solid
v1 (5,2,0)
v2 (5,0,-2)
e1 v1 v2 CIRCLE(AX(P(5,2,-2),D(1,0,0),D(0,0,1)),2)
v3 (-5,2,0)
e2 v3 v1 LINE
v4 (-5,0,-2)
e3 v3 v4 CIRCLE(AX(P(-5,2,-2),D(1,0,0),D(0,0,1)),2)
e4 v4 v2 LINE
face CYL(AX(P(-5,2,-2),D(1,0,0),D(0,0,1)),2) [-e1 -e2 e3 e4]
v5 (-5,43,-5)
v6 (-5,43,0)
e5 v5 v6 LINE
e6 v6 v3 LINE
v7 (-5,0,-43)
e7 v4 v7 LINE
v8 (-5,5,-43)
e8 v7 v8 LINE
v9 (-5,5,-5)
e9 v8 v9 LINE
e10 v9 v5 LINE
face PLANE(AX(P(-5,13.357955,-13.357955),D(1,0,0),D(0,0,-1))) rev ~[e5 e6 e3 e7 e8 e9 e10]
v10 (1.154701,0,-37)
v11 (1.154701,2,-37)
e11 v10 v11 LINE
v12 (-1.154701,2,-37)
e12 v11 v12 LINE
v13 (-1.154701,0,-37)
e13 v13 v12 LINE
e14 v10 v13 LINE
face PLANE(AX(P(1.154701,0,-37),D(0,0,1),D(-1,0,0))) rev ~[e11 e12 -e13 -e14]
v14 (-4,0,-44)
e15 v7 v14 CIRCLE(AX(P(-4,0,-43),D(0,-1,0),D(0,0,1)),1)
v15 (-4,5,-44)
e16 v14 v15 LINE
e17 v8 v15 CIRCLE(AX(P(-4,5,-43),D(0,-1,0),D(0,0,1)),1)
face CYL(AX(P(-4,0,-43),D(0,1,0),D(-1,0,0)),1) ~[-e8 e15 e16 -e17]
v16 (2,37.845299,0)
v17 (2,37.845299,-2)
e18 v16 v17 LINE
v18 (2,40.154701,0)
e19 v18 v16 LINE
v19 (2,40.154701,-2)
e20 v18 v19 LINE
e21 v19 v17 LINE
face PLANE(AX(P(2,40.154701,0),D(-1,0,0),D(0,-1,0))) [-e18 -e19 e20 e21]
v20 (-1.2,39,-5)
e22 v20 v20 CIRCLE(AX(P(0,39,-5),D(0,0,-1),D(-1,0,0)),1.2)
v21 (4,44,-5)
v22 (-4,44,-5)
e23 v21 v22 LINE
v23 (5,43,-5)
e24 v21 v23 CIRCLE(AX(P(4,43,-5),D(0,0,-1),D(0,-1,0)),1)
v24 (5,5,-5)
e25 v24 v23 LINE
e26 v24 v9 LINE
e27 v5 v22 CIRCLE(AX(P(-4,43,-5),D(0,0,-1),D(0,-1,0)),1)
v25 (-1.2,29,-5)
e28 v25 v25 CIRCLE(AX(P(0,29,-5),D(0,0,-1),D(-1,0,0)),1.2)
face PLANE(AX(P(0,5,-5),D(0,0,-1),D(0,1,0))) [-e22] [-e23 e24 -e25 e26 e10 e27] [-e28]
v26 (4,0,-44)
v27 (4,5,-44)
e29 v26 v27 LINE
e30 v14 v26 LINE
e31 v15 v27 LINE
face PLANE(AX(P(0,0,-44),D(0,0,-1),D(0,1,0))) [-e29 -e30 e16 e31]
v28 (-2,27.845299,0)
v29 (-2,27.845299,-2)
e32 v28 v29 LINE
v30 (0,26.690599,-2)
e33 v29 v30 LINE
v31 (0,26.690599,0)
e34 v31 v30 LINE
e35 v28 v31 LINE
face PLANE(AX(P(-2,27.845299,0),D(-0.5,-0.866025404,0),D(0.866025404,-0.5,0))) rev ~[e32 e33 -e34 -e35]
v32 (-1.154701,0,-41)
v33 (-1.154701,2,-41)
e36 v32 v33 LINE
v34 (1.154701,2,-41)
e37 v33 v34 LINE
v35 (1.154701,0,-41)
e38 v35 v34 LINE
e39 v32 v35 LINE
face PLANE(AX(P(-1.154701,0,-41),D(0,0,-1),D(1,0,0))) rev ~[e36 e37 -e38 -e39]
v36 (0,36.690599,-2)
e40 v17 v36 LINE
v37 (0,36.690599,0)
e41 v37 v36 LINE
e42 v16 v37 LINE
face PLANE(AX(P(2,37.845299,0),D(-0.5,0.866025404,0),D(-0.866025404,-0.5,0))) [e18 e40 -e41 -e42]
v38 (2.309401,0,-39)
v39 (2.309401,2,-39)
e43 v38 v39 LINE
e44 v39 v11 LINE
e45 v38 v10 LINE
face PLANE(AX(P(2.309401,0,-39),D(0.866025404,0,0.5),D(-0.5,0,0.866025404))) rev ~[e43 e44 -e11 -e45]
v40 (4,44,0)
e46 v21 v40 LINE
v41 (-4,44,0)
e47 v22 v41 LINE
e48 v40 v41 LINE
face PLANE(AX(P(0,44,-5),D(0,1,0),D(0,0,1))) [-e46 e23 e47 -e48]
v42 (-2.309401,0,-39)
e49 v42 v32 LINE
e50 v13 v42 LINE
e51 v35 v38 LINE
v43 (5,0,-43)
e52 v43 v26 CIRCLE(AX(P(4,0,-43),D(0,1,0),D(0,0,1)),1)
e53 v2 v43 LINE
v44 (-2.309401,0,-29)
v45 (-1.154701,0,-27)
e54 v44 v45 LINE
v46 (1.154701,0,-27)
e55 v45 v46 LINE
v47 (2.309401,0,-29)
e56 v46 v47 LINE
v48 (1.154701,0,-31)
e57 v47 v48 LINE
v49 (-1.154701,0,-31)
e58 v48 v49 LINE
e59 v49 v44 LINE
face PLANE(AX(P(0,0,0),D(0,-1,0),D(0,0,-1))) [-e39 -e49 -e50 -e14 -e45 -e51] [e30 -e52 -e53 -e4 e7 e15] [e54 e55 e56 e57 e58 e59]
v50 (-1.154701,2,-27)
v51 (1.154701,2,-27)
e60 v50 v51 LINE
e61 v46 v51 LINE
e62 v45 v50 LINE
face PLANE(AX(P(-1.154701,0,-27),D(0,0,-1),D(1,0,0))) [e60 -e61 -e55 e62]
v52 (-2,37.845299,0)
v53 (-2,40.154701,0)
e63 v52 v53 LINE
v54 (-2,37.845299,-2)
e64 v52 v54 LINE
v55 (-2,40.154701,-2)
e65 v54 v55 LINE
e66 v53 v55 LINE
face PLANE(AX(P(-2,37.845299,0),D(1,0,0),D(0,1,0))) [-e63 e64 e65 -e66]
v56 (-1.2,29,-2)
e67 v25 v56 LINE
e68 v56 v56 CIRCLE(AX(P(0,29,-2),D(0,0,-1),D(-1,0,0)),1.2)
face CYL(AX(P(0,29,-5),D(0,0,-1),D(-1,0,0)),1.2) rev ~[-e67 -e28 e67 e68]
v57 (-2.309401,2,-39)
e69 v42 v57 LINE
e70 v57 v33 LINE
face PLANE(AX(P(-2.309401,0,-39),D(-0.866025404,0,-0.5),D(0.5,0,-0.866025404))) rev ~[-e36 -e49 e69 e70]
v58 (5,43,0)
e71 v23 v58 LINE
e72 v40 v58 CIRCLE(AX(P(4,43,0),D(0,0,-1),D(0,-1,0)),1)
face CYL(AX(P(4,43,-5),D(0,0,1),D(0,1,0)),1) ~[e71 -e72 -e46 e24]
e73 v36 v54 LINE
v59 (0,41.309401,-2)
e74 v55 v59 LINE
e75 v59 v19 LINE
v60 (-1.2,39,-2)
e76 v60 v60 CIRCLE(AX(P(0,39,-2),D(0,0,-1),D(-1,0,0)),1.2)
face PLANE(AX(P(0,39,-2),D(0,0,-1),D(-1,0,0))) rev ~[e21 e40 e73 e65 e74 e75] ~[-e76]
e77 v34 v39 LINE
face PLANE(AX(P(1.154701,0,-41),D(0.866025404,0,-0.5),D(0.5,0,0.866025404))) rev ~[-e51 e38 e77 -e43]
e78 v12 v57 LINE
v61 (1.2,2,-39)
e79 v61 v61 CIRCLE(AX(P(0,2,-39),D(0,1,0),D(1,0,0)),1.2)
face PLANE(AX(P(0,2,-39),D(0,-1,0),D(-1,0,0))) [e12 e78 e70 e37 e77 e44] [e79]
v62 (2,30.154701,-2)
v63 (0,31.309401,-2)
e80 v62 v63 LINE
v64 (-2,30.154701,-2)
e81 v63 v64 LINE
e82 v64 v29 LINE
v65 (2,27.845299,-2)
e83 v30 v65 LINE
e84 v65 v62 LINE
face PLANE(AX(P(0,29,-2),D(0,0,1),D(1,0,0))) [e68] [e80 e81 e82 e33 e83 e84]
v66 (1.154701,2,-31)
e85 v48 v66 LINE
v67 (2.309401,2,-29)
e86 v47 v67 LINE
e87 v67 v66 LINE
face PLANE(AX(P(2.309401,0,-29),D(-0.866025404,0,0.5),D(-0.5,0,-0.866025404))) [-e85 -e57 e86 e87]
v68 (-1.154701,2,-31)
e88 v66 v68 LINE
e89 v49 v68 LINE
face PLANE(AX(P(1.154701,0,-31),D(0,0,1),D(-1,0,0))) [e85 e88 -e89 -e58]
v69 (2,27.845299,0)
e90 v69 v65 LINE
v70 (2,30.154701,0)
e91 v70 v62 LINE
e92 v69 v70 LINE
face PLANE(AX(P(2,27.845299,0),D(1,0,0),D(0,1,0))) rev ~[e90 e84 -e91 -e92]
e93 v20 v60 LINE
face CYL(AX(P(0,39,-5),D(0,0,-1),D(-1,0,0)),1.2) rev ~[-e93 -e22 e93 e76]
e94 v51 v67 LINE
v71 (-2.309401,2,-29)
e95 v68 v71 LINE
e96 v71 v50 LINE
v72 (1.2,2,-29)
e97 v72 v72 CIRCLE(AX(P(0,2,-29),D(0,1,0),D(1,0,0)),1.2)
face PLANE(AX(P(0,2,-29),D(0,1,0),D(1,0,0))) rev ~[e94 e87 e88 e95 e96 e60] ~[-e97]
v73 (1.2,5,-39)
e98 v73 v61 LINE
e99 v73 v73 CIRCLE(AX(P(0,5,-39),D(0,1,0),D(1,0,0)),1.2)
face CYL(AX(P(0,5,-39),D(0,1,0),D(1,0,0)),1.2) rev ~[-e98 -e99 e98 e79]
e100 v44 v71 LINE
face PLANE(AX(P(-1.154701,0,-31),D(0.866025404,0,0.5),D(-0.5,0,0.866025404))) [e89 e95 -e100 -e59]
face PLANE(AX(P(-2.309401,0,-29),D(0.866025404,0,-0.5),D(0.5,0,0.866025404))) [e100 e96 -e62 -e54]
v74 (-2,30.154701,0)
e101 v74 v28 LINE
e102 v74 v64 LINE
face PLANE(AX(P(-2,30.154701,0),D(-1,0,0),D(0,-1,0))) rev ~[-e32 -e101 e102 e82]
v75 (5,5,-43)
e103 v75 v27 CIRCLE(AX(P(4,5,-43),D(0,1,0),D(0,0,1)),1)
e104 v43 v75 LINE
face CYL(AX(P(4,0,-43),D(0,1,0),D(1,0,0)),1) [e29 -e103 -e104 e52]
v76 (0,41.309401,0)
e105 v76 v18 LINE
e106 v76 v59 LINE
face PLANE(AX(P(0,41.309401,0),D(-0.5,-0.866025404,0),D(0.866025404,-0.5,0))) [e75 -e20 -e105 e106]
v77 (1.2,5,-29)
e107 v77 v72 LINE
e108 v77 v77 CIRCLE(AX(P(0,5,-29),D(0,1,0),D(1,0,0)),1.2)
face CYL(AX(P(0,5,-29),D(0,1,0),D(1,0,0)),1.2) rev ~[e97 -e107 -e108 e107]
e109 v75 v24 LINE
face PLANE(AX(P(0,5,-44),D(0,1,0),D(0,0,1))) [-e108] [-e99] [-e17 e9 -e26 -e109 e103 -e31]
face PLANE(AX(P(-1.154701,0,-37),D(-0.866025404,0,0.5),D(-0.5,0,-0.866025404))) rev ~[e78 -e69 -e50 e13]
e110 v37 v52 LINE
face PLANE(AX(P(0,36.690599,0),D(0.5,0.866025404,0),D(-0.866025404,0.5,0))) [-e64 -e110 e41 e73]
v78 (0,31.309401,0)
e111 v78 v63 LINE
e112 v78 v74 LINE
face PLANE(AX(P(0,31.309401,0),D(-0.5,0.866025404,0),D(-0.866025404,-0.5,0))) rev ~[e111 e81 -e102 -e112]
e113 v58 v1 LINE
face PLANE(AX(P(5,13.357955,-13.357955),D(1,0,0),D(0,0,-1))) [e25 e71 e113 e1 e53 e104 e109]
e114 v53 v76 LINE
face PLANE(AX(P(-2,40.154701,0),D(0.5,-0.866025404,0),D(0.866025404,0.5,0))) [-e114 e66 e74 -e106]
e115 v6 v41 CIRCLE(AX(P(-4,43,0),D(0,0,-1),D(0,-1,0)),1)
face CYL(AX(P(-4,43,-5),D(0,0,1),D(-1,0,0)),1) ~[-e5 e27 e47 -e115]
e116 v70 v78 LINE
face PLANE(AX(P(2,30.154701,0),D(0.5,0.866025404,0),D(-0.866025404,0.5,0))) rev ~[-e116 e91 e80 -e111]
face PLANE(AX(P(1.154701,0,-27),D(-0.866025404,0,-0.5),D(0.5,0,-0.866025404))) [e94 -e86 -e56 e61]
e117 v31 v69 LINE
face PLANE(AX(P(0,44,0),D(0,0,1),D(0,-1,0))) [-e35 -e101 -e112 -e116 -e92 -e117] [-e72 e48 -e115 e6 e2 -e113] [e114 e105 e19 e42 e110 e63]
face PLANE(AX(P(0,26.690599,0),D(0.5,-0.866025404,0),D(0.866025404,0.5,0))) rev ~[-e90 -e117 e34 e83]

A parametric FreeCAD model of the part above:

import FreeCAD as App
import Part
import Sketcher
Q = App.Units.Quantity


def edges_at(feature, points):
    """Names of the edges that pass closest to the given points."""
    edges = feature.Shape.Edges
    near = lambda p: min(range(len(edges)), key=lambda i: edges[i].distToShape(Part.Vertex(*p))[0])
    return sorted({f"Edge{near(p) + 1}" for p in points})


def add_polygon(sketch, points):
    """Adds a closed chain of lines whose ends are joined by coincident constraints."""
    first, n = sketch.GeometryCount, len(points)
    for a, b in zip(points, points[1:] + points[:1]):
        sketch.addGeometry(Part.LineSegment(App.Vector(*a, 0), App.Vector(*b, 0)), False)
    for i in range(n):
        sketch.addConstraint(Sketcher.Constraint("Coincident", first + i, 2, first + (i + 1) % n, 1))

doc = App.newDocument("Part")
body = doc.addObject("PartDesign::Body", "Body")

sketch1 = body.newObject("Sketcher::SketchObject", "Sketch")
sketch1.AttachmentSupport = (doc.getObject("YZ_Plane"), [""])
sketch1.MapMode = "FlatFace"
add_polygon(sketch1, [(44, 0), (0, 0), (0, -44), (5, -44), (5, -5), (44, -5)])
sketch1.addConstraint([
    Sketcher.Constraint("Horizontal", 0),
    Sketcher.Constraint("Vertical", 1),
    Sketcher.Constraint("Horizontal", 2),
    Sketcher.Constraint("Vertical", 3),
    Sketcher.Constraint("Horizontal", 4),
    Sketcher.Constraint("Vertical", 5),
    Sketcher.Constraint("Coincident", 0, 2, -1, 1),
    Sketcher.Constraint("Equal", 0, 1),
    Sketcher.Constraint("Equal", 4, 3),
    Sketcher.Constraint("DistanceX", 0, 2, 0, 1, 44.0),
    Sketcher.Constraint("DistanceX", 2, 1, 2, 2, 5.0),
])
pad1 = body.newObject("PartDesign::Pad", "Pad")
pad1.Profile = sketch1
pad1.Type = "TwoLengths"
pad1.Length = 5
pad1.Length2 = 5

sketch2 = body.newObject("Sketcher::SketchObject", "Sketch001")
sketch2.AttachmentSupport = (doc.getObject("XZ_Plane"), [""])
sketch2.MapMode = "FlatFace"
sketch2.AttachmentOffset = App.Placement(App.Vector(0, 0, -5), App.Rotation())
sketch2.addGeometry([
    Part.Circle(App.Vector(0, -39, 0), App.Vector(0, 0, 1), 1.2),
    Part.Circle(App.Vector(0, -29, 0), App.Vector(0, 0, 1), 1.2),
], False)
sketch2.addConstraint([
    Sketcher.Constraint("Equal", 0, 1),
    Sketcher.Constraint("PointOnObject", 0, 3, -2),
    Sketcher.Constraint("PointOnObject", 1, 3, -2),
    Sketcher.Constraint("Diameter", 0, 2.4),
    Sketcher.Constraint("DistanceY", 0, 3, -1, 1, 39.0),
    Sketcher.Constraint("DistanceY", 1, 3, -1, 1, 29.0),
])
pocket1 = body.newObject("PartDesign::Pocket", "Pocket")
pocket1.Profile = sketch2
pocket1.Type = "ThroughAll"
pocket1.Reversed = True

sketch3 = body.newObject("Sketcher::SketchObject", "Sketch002")
sketch3.AttachmentSupport = (doc.getObject("XY_Plane"), [""])
sketch3.MapMode = "FlatFace"
sketch3.AttachmentOffset = App.Placement(App.Vector(0, 0, -5), App.Rotation())
sketch3.addGeometry([
    Part.Circle(App.Vector(0, 39, 0), App.Vector(0, 0, 1), 1.2),
    Part.Circle(App.Vector(0, 29, 0), App.Vector(0, 0, 1), 1.2),
], False)
sketch3.addConstraint([
    Sketcher.Constraint("Equal", 0, 1),
    Sketcher.Constraint("PointOnObject", 0, 3, -2),
    Sketcher.Constraint("PointOnObject", 1, 3, -2),
    Sketcher.Constraint("Diameter", 0, 2.4),
    Sketcher.Constraint("DistanceY", -1, 1, 0, 3, 39.0),
    Sketcher.Constraint("DistanceY", -1, 1, 1, 3, 29.0),
])
pocket2 = body.newObject("PartDesign::Pocket", "Pocket001")
pocket2.Profile = sketch3
pocket2.Type = "ThroughAll"
pocket2.Reversed = True
doc.recompute()

fillet = body.newObject("PartDesign::Fillet", "Fillet")
fillet.Base = (pocket2, edges_at(pocket2, [
    (-5, 2.5, -44),
    (5, 44, -2.5),
    (5, 2.5, -44),
    (-5, 44, -2.5),
]))
fillet.Radius = 1
doc.recompute()

fillet2 = body.newObject("PartDesign::Fillet", "Fillet001")
fillet2.Base = (fillet, edges_at(fillet, [(0, 0, 0)]))
fillet2.Radius = 2

sketch4 = body.newObject("Sketcher::SketchObject", "Sketch003")
sketch4.AttachmentSupport = (doc.getObject("XY_Plane"), [""])
sketch4.MapMode = "FlatFace"
add_polygon(sketch4, [(0, 26.7), (-2, 27.8), (-2, 30.2), (0, 31.3), (2, 30.2), (2, 27.8)])
add_polygon(sketch4, [(0, 41.3), (2, 40.2), (2, 37.8), (0, 36.7), (-2, 37.8), (-2, 40.2)])
sketch4.addConstraint([
    Sketcher.Constraint("Vertical", 1),
    Sketcher.Constraint("Vertical", 4),
    Sketcher.Constraint("Vertical", 7),
    Sketcher.Constraint("Vertical", 10),
    Sketcher.Constraint("Symmetric", 1, 2, 3, 2, -2),
    Sketcher.Constraint("Symmetric", 7, 2, 9, 2, -2),
    Sketcher.Constraint("PointOnObject", 2, 2, -2),
    Sketcher.Constraint("PointOnObject", 5, 2, -2),
    Sketcher.Constraint("PointOnObject", 8, 2, -2),
    Sketcher.Constraint("PointOnObject", 11, 2, -2),
    Sketcher.Constraint("Parallel", 0, 3),
    Sketcher.Constraint("Parallel", 2, 5),
    Sketcher.Constraint("Parallel", 3, 6),
    Sketcher.Constraint("Parallel", 5, 8),
    Sketcher.Constraint("Parallel", 8, 11),
    Sketcher.Constraint("Vertical", 4, 2, 6, 2),
    Sketcher.Constraint("Equal", 4, 7),
    Sketcher.Constraint("Angle", 0, Q("150 deg")),
    Sketcher.Constraint("DistanceX", 0, 2, -1, 1, 2.0),
    Sketcher.Constraint("DistanceY", 3, 2, 6, 2, 10.0),
    Sketcher.Constraint("DistanceY", 1, 1, 1, 2, 2.309401),
    Sketcher.Constraint("DistanceY", -1, 1, 0, 2, 27.845299),
])
pocket3 = body.newObject("PartDesign::Pocket", "Pocket002")
pocket3.Profile = sketch4
pocket3.Length = 2

sketch5 = body.newObject("Sketcher::SketchObject", "Sketch004")
sketch5.AttachmentSupport = (doc.getObject("XZ_Plane"), [""])
sketch5.MapMode = "FlatFace"
add_polygon(sketch5, [(2.3, -29), (1.2, -31), (-1.2, -31), (-2.3, -29), (-1.2, -27), (1.2, -27)])
add_polygon(sketch5, [(2.3, -39), (1.2, -41), (-1.2, -41), (-2.3, -39), (-1.2, -37), (1.2, -37)])
sketch5.addConstraint([
    Sketcher.Constraint("Horizontal", 1),
    Sketcher.Constraint("Horizontal", 4),
    Sketcher.Constraint("Horizontal", 7),
    Sketcher.Constraint("Horizontal", 10),
    Sketcher.Constraint("Symmetric", 2, 2, 5, 2, -2),
    Sketcher.Constraint("Symmetric", 8, 2, 11, 2, -2),
    Sketcher.Constraint("Parallel", 0, 3),
    Sketcher.Constraint("Parallel", 2, 5),
    Sketcher.Constraint("Parallel", 3, 6),
    Sketcher.Constraint("Parallel", 5, 8),
    Sketcher.Constraint("Parallel", 6, 9),
    Sketcher.Constraint("Parallel", 8, 11),
    Sketcher.Constraint("Vertical", 1, 2, 3, 2),
    Sketcher.Constraint("Vertical", 0, 2, 4, 2),
    Sketcher.Constraint("Vertical", 4, 2, 6, 2),
    Sketcher.Constraint("Vertical", 2, 2, 8, 2),
    Sketcher.Constraint("Vertical", 7, 2, 9, 2),
    Sketcher.Constraint("Angle", 0, Q("-120 deg")),
    Sketcher.Constraint("DistanceY", 0, 2, -1, 1, 31.0),
    Sketcher.Constraint("DistanceY", 2, 2, -1, 1, 29.0),
    Sketcher.Constraint("DistanceY", 6, 2, -1, 1, 41.0),
    Sketcher.Constraint("DistanceX", 1, 2, 1, 1, 2.309401),
])
pocket4 = body.newObject("PartDesign::Pocket", "Pocket003")
pocket4.Profile = sketch5
pocket4.Length = 2

doc.recompute()
